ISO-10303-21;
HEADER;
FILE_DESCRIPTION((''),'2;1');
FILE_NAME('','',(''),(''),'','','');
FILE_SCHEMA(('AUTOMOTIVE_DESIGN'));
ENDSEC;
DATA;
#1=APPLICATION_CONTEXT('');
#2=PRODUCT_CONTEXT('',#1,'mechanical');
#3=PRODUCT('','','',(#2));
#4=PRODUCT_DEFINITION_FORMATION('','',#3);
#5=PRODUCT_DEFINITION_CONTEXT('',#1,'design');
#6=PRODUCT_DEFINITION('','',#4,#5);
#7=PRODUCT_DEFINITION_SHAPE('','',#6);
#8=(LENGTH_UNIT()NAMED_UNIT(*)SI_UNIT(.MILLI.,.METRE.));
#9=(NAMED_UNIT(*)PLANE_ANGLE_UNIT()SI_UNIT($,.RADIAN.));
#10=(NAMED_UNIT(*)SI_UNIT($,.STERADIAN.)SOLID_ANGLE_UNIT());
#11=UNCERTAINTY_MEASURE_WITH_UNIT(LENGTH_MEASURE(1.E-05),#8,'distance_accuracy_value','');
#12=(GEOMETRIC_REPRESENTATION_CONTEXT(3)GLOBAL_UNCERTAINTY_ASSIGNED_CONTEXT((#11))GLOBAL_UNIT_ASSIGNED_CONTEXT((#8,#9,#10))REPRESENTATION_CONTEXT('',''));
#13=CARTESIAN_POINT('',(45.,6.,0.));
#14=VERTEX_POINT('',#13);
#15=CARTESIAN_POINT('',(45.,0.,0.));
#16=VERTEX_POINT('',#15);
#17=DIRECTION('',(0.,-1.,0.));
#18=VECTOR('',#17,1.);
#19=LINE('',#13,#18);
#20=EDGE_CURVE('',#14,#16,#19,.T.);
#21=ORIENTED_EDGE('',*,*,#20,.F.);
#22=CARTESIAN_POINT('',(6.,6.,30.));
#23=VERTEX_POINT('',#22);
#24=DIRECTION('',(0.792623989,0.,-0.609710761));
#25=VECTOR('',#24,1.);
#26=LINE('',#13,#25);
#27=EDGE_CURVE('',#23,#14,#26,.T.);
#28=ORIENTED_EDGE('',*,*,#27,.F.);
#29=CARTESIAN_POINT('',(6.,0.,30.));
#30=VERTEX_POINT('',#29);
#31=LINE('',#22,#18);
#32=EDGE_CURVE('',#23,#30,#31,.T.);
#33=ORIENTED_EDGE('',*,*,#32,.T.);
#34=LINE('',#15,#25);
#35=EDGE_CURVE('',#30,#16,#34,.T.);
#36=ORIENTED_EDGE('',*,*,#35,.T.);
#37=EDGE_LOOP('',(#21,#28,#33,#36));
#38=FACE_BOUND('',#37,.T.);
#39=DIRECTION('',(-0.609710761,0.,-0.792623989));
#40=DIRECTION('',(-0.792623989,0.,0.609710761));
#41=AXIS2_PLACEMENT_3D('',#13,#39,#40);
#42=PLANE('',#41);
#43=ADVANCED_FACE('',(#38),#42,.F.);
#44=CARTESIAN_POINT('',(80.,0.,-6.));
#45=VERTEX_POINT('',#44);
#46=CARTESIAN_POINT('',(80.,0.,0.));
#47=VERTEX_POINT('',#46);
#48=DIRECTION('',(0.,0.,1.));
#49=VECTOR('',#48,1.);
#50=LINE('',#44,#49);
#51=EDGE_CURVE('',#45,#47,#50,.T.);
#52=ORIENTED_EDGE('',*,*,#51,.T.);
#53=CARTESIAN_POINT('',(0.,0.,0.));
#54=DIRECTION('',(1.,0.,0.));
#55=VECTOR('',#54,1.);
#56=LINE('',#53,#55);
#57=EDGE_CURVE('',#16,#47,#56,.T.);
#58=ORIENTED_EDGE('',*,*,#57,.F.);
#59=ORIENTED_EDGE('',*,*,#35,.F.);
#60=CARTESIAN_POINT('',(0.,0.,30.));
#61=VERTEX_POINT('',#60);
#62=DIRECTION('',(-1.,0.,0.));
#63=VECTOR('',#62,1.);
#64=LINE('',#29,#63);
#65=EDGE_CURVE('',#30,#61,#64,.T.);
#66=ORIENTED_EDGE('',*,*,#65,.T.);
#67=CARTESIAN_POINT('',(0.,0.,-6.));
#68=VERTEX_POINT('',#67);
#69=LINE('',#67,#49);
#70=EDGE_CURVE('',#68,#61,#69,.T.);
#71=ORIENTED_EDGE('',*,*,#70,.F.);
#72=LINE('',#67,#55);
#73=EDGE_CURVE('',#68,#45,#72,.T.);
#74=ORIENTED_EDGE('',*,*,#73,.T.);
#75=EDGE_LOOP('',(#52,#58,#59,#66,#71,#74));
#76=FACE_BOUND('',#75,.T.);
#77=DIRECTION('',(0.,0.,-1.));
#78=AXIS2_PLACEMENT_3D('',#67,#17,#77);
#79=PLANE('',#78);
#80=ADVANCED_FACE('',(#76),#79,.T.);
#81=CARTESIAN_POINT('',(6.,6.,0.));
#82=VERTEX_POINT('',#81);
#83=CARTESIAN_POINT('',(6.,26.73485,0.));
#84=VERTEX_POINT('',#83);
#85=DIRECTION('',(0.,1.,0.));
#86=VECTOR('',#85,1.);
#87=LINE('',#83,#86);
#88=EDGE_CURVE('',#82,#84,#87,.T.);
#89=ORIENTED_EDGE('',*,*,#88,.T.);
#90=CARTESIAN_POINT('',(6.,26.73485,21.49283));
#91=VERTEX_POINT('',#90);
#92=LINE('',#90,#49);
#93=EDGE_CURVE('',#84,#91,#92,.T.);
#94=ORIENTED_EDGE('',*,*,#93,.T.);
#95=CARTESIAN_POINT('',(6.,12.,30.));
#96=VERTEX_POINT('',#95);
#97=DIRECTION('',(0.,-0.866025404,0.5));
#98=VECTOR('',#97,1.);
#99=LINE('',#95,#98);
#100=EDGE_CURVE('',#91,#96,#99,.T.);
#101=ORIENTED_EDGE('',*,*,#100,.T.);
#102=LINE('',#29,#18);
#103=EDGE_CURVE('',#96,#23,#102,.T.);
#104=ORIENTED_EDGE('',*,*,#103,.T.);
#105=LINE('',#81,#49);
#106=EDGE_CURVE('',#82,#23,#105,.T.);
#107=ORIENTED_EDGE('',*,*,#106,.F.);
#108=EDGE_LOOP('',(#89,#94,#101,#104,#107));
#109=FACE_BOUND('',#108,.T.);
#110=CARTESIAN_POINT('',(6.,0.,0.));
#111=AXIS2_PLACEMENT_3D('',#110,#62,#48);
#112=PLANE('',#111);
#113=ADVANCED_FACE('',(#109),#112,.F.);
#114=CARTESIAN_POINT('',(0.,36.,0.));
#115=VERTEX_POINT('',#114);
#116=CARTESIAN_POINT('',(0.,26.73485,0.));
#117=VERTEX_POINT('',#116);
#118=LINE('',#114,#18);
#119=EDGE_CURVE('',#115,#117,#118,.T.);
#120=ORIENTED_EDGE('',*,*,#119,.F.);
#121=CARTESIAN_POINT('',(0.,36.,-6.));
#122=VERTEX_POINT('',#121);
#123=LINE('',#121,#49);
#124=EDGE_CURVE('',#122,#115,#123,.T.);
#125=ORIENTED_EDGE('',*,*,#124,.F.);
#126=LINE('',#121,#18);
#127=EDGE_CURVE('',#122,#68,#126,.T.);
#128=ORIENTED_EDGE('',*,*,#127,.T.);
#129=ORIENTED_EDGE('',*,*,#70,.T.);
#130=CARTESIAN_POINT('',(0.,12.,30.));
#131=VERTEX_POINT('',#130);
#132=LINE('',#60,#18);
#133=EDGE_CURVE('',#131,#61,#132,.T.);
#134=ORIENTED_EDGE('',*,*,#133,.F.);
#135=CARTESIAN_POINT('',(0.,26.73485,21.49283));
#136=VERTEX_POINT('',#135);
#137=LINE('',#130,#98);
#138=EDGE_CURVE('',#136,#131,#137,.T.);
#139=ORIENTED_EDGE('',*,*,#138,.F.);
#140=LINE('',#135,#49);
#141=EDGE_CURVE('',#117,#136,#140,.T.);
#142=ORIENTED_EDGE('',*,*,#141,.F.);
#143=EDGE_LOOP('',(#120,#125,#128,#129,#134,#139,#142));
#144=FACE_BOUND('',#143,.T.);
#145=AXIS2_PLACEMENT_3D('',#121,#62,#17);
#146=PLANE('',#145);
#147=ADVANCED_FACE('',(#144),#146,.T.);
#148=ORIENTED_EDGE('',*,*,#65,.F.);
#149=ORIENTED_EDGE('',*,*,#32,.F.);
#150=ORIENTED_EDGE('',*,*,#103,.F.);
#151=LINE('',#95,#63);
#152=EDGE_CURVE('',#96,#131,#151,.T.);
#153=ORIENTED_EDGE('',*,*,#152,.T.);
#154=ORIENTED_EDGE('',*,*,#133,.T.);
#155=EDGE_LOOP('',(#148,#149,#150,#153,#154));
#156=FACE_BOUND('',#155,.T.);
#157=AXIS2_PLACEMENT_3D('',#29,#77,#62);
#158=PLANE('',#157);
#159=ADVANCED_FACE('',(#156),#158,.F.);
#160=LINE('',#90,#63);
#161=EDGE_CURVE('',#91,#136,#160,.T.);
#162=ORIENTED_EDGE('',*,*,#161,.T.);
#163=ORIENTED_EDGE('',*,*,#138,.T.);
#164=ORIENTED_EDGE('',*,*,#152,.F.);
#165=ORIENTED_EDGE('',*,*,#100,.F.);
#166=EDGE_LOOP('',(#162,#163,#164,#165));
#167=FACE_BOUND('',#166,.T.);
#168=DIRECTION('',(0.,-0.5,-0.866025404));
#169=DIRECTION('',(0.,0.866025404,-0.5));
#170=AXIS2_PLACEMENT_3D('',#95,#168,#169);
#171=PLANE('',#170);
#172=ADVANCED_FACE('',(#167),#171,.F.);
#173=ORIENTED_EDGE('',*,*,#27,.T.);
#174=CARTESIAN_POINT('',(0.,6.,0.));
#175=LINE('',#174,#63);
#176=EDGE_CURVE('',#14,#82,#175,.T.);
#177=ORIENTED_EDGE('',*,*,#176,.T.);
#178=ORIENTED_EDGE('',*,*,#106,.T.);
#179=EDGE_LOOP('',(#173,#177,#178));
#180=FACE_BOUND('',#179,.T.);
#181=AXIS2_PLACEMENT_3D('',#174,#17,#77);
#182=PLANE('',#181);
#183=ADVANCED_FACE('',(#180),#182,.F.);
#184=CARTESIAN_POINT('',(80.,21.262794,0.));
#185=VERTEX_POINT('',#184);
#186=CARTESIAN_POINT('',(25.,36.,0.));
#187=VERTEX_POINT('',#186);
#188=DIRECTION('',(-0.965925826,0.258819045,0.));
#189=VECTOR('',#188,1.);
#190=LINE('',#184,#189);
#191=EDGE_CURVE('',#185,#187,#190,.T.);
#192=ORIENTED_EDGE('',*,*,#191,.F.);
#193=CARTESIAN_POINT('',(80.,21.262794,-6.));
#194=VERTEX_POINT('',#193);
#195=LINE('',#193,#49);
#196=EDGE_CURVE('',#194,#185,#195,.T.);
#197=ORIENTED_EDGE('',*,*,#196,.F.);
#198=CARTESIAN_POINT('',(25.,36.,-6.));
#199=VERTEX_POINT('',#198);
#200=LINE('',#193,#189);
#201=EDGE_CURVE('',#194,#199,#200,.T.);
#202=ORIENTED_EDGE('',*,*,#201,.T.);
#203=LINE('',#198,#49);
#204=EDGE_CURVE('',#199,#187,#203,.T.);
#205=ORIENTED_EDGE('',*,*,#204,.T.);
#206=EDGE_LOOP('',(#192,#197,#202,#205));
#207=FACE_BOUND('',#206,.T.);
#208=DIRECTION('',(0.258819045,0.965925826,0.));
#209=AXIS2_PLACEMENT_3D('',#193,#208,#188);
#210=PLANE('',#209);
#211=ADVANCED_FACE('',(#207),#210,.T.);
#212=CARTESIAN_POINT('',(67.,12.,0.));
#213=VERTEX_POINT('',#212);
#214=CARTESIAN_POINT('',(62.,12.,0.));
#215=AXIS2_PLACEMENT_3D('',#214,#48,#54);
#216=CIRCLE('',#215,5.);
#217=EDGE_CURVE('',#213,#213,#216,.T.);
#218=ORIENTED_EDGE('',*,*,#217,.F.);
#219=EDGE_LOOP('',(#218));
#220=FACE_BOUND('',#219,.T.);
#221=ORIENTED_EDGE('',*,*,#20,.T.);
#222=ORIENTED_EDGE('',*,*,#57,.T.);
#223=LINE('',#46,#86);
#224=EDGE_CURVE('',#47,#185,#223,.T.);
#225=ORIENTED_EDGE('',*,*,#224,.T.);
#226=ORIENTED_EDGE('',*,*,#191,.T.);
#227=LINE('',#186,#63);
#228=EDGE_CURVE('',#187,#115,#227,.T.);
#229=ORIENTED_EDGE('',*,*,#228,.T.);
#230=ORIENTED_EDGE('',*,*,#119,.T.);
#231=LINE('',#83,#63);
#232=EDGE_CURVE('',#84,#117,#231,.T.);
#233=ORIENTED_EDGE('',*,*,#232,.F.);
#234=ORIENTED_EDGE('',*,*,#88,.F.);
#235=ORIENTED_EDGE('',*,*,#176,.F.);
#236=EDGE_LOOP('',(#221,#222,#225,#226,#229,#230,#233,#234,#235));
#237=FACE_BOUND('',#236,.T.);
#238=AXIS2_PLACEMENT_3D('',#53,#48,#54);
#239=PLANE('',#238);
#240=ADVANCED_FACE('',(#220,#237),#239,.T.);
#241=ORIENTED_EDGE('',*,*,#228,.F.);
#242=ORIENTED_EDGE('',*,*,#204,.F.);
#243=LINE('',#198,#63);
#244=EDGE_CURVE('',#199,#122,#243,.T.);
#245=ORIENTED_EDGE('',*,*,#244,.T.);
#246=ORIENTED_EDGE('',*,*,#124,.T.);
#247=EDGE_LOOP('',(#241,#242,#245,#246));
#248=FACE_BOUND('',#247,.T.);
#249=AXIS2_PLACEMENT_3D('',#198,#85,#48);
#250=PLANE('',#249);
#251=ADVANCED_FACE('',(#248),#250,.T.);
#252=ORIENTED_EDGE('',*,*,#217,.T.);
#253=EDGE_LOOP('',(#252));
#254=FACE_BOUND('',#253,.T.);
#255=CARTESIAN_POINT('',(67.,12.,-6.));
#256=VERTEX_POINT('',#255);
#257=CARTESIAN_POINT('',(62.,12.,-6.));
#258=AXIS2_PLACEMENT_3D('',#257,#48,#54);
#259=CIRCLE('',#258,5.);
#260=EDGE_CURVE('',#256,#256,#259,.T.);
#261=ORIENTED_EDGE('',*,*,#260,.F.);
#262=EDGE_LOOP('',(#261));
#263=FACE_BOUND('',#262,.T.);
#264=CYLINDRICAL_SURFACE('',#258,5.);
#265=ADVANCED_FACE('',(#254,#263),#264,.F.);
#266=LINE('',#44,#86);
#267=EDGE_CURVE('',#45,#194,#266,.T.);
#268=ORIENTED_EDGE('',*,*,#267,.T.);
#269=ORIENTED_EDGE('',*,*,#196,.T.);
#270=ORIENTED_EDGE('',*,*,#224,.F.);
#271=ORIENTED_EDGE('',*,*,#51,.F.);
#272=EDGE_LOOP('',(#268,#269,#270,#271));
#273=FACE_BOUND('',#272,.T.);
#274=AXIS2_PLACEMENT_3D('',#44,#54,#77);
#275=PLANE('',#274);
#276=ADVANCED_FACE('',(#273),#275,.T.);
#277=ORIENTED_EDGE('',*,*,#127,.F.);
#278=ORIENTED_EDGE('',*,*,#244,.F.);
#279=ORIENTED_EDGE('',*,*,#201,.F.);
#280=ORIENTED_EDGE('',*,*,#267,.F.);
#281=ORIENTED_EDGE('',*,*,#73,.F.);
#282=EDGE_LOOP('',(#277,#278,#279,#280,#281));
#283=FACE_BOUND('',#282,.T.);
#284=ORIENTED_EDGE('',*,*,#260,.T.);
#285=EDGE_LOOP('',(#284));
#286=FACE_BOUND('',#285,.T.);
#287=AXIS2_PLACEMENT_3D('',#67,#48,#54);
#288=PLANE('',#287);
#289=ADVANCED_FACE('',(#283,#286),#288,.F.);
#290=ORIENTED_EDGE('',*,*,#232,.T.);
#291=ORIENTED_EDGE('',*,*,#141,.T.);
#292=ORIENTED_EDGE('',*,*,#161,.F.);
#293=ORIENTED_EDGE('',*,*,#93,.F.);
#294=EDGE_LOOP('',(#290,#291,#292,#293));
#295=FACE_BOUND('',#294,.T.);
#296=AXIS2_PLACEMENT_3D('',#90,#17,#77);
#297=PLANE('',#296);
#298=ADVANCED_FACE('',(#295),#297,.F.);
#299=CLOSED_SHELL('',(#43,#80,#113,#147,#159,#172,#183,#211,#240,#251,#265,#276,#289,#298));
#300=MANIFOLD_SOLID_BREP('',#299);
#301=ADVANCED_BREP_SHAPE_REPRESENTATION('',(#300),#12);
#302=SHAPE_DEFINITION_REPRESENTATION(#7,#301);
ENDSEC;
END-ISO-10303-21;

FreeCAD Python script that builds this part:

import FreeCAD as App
import Part
import Sketcher
Q = App.Units.Quantity

doc = App.newDocument("Part")
body = doc.addObject("PartDesign::Body", "Body")

sketch1 = body.newObject("Sketcher::SketchObject", "Sketch")
sketch1.AttachmentSupport = (doc.getObject("XY_Plane"), [""])
sketch1.MapMode = "FlatFace"
sketch1.addGeometry([
    Part.LineSegment(App.Vector(0, 0, 0), App.Vector(80, 0, 0)),
    Part.LineSegment(App.Vector(80, 0, 0), App.Vector(80, 21, 0)),
    Part.LineSegment(App.Vector(80, 21, 0), App.Vector(25, 36, 0)),
    Part.LineSegment(App.Vector(25, 36, 0), App.Vector(0, 36, 0)),
    Part.LineSegment(App.Vector(0, 36, 0), App.Vector(0, 0, 0)),
    Part.Circle(App.Vector(62, 12, 0), App.Vector(0, 0, 1), 5),
], False)
sketch1.addConstraint([
    Sketcher.Constraint("Coincident", 0, 2, 1, 1),
    Sketcher.Constraint("Coincident", 1, 2, 2, 1),
    Sketcher.Constraint("Coincident", 2, 2, 3, 1),
    Sketcher.Constraint("Coincident", 3, 2, 4, 1),
    Sketcher.Constraint("Coincident", 4, 2, 0, 1),
    Sketcher.Constraint("Horizontal", 0),
    Sketcher.Constraint("Vertical", 1),
    Sketcher.Constraint("Horizontal", 3),
    Sketcher.Constraint("Vertical", 4),
    Sketcher.Constraint("Coincident", 4, 2, -1, 1),
    Sketcher.Constraint("Diameter", 5, 10.0),
    Sketcher.Constraint("DistanceX", 0, 1, 0, 2, 80.0),
    Sketcher.Constraint("DistanceX", 3, 2, 3, 1, 25.0),
    Sketcher.Constraint("DistanceY", 4, 2, 4, 1, 36.0),
    Sketcher.Constraint("Angle", 2, Q("165 deg")),
    Sketcher.Constraint("DistanceX", -1, 1, 5, 3, 62.0),
    Sketcher.Constraint("DistanceY", -1, 1, 5, 3, 12.0),
])
pad1 = body.newObject("PartDesign::Pad", "Pad")
pad1.Profile = sketch1
pad1.Length = 6
pad1.Reversed = True

sketch2 = body.newObject("Sketcher::SketchObject", "Sketch001")
sketch2.AttachmentSupport = (doc.getObject("YZ_Plane"), [""])
sketch2.MapMode = "FlatFace"
sketch2.addGeometry([
    Part.LineSegment(App.Vector(0, 30, 0), App.Vector(0, 0, 0)),
    Part.LineSegment(App.Vector(0, 0, 0), App.Vector(27, 0, 0)),
    Part.LineSegment(App.Vector(27, 0, 0), App.Vector(27, 21, 0)),
    Part.LineSegment(App.Vector(27, 21, 0), App.Vector(12, 30, 0)),
    Part.LineSegment(App.Vector(12, 30, 0), App.Vector(0, 30, 0)),
], False)
sketch2.addConstraint([
    Sketcher.Constraint("Coincident", 0, 2, 1, 1),
    Sketcher.Constraint("Coincident", 1, 2, 2, 1),
    Sketcher.Constraint("Coincident", 2, 2, 3, 1),
    Sketcher.Constraint("Coincident", 3, 2, 4, 1),
    Sketcher.Constraint("Coincident", 4, 2, 0, 1),
    Sketcher.Constraint("Vertical", 0),
    Sketcher.Constraint("Horizontal", 1),
    Sketcher.Constraint("Vertical", 2),
    Sketcher.Constraint("Horizontal", 4),
    Sketcher.Constraint("Coincident", 0, 2, -1, 1),
    Sketcher.Constraint("DistanceX", 4, 2, 4, 1, 12.0),
    Sketcher.Constraint("DistanceY", 0, 2, 0, 1, 30.0),
    Sketcher.Constraint("Angle", 3, Q("150 deg")),
    Sketcher.Constraint("DistanceX", 1, 1, 1, 2, 26.73485),
])
pad2 = body.newObject("PartDesign::Pad", "Pad001")
pad2.Profile = sketch2
pad2.Length = 6

sketch3 = body.newObject("Sketcher::SketchObject", "Sketch002")
sketch3.AttachmentSupport = (doc.getObject("XZ_Plane"), [""])
sketch3.MapMode = "FlatFace"
sketch3.addGeometry([
    Part.LineSegment(App.Vector(45, 0, 0), App.Vector(0, 0, 0)),
    Part.LineSegment(App.Vector(0, 0, 0), App.Vector(0, 30, 0)),
    Part.LineSegment(App.Vector(0, 30, 0), App.Vector(6, 30, 0)),
    Part.LineSegment(App.Vector(6, 30, 0), App.Vector(45, 0, 0)),
], False)
sketch3.addConstraint([
    Sketcher.Constraint("Coincident", 0, 2, 1, 1),
    Sketcher.Constraint("Coincident", 1, 2, 2, 1),
    Sketcher.Constraint("Coincident", 2, 2, 3, 1),
    Sketcher.Constraint("Coincident", 3, 2, 0, 1),
    Sketcher.Constraint("Horizontal", 0),
    Sketcher.Constraint("Vertical", 1),
    Sketcher.Constraint("Horizontal", 2),
    Sketcher.Constraint("Coincident", 0, 2, -1, 1),
    Sketcher.Constraint("DistanceX", 0, 2, 0, 1, 45.0),
    Sketcher.Constraint("DistanceX", 2, 1, 2, 2, 6.0),
    Sketcher.Constraint("DistanceY", 1, 1, 1, 2, 30.0),
])
pad3 = body.newObject("PartDesign::Pad", "Pad002")
pad3.Profile = sketch3
pad3.Length = 6
pad3.Reversed = True

doc.recompute()
